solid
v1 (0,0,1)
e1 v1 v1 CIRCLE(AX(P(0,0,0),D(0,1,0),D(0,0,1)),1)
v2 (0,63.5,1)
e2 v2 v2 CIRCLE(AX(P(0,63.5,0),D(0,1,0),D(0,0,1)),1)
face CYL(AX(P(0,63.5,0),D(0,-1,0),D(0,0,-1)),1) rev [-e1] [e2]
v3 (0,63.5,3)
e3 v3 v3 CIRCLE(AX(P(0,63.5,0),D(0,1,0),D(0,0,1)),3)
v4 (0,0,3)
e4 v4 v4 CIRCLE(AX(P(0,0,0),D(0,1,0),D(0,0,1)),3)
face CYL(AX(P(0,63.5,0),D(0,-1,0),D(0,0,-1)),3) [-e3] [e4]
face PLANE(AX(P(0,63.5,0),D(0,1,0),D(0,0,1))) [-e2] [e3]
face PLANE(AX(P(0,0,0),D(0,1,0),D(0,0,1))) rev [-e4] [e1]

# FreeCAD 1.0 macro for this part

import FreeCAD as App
import Part
import Sketcher

V = App.Vector

doc = App.newDocument("Part")
body = doc.addObject("PartDesign::Body", "Body")

# Sketch on XZ plane
sketch1 = body.newObject("Sketcher::SketchObject", "Sketch")
sketch1.AttachmentSupport = (doc.getObject("XZ_Plane"), [""])
sketch1.MapMode = "FlatFace"
sketch1.addGeometry([
    Part.Circle(V(0, 0, 0), V(0, 0, 1), 3),
    Part.Circle(V(0, 0, 0), V(0, 0, 1), 1),
], False)
sketch1.addConstraint([
    Sketcher.Constraint("Coincident", 0, 3, -1, 1),
    Sketcher.Constraint("Coincident", 1, 3, -1, 1),
    Sketcher.Constraint("Diameter", 0, 6.0),
    Sketcher.Constraint("Diameter", 1, 2.0),
])
pad1 = body.newObject("PartDesign::Pad", "Pad")
pad1.Profile = sketch1
pad1.Length = 63.5
pad1.Reversed = True

doc.recompute()
